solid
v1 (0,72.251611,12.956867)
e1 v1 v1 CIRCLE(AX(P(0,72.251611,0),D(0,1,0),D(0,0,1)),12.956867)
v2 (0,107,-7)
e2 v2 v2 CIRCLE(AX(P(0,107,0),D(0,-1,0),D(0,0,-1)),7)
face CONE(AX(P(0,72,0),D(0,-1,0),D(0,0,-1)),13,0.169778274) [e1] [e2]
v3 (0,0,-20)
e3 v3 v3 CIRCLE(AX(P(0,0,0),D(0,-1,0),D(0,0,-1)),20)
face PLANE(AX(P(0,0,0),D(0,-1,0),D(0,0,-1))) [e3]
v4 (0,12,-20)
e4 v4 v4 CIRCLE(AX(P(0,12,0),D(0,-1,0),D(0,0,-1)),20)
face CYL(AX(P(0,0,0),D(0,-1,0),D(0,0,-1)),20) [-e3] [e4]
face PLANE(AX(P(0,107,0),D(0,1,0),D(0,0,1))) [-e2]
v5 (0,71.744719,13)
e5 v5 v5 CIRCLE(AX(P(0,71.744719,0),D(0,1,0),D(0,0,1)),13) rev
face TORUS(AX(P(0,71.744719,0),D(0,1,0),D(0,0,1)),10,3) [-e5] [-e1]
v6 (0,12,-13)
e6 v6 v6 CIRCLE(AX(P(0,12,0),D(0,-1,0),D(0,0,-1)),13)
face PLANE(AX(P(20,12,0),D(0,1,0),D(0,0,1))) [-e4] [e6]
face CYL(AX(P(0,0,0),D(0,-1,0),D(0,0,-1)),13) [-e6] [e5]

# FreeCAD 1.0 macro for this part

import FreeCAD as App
import Part
import Sketcher


def edges_at(feature, points):
    """Names of the edges that pass closest to the given points."""
    edges = feature.Shape.Edges
    near = lambda p: min(range(len(edges)), key=lambda i: edges[i].distToShape(Part.Vertex(*p))[0])
    return sorted({f"Edge{near(p) + 1}" for p in points})

doc = App.newDocument("Part")
body = doc.addObject("PartDesign::Body", "Body")

# Sketch on XY plane
sketch1 = body.newObject("Sketcher::SketchObject", "Sketch")
sketch1.AttachmentSupport = (doc.getObject("XY_Plane"), [""])
sketch1.MapMode = "FlatFace"
sketch1.addGeometry(Part.LineSegment(App.Vector(0, 0, 0), App.Vector(20, 0, 0)), False)
sketch1.addGeometry(Part.LineSegment(App.Vector(20, 0, 0), App.Vector(20, 12, 0)), False)
sketch1.addGeometry(Part.LineSegment(App.Vector(20, 12, 0), App.Vector(13, 12, 0)), False)
sketch1.addGeometry(Part.LineSegment(App.Vector(13, 12, 0), App.Vector(13, 72, 0)), False)
sketch1.addGeometry(Part.LineSegment(App.Vector(13, 72, 0), App.Vector(7, 107, 0)), False)
sketch1.addGeometry(Part.LineSegment(App.Vector(7, 107, 0), App.Vector(0, 107, 0)), False)
sketch1.addGeometry(Part.LineSegment(App.Vector(0, 107, 0), App.Vector(0, 0, 0)), False)
sketch1.addConstraint(Sketcher.Constraint("Coincident", 0, 2, 1, 1))
sketch1.addConstraint(Sketcher.Constraint("Coincident", 1, 2, 2, 1))
sketch1.addConstraint(Sketcher.Constraint("Coincident", 2, 2, 3, 1))
sketch1.addConstraint(Sketcher.Constraint("Coincident", 3, 2, 4, 1))
sketch1.addConstraint(Sketcher.Constraint("Coincident", 4, 2, 5, 1))
sketch1.addConstraint(Sketcher.Constraint("Coincident", 5, 2, 6, 1))
sketch1.addConstraint(Sketcher.Constraint("Coincident", 6, 2, 0, 1))
sketch1.addConstraint(Sketcher.Constraint("Horizontal", 0))
sketch1.addConstraint(Sketcher.Constraint("Vertical", 1))
sketch1.addConstraint(Sketcher.Constraint("Horizontal", 2))
sketch1.addConstraint(Sketcher.Constraint("Vertical", 3))
sketch1.addConstraint(Sketcher.Constraint("Horizontal", 5))
sketch1.addConstraint(Sketcher.Constraint("Vertical", 6))
sketch1.addConstraint(Sketcher.Constraint("Coincident", 6, 2, -1, 1))
sketch1.addConstraint(Sketcher.Constraint("Equal", 2, 5))
sketch1.addConstraint(Sketcher.Constraint("DistanceX", 0, 1, 0, 2, 20.0))
sketch1.addConstraint(Sketcher.Constraint("DistanceX", 2, 2, 2, 1, 7.0))
sketch1.addConstraint(Sketcher.Constraint("DistanceY", 1, 1, 1, 2, 12.0))
sketch1.addConstraint(Sketcher.Constraint("DistanceY", 3, 1, 3, 2, 60.0))
sketch1.addConstraint(Sketcher.Constraint("DistanceY", 6, 2, 6, 1, 107.0))
revolution = body.newObject("PartDesign::Revolution", "Revolution")
revolution.Profile = sketch1
revolution.ReferenceAxis = (sketch1, ["V_Axis"])
revolution.Angle = 360
doc.recompute()

fillet = body.newObject("PartDesign::Fillet", "Fillet")
fillet.Base = (revolution, edges_at(revolution, [(0, 72, 13)]))
fillet.Radius = 3

doc.recompute()
